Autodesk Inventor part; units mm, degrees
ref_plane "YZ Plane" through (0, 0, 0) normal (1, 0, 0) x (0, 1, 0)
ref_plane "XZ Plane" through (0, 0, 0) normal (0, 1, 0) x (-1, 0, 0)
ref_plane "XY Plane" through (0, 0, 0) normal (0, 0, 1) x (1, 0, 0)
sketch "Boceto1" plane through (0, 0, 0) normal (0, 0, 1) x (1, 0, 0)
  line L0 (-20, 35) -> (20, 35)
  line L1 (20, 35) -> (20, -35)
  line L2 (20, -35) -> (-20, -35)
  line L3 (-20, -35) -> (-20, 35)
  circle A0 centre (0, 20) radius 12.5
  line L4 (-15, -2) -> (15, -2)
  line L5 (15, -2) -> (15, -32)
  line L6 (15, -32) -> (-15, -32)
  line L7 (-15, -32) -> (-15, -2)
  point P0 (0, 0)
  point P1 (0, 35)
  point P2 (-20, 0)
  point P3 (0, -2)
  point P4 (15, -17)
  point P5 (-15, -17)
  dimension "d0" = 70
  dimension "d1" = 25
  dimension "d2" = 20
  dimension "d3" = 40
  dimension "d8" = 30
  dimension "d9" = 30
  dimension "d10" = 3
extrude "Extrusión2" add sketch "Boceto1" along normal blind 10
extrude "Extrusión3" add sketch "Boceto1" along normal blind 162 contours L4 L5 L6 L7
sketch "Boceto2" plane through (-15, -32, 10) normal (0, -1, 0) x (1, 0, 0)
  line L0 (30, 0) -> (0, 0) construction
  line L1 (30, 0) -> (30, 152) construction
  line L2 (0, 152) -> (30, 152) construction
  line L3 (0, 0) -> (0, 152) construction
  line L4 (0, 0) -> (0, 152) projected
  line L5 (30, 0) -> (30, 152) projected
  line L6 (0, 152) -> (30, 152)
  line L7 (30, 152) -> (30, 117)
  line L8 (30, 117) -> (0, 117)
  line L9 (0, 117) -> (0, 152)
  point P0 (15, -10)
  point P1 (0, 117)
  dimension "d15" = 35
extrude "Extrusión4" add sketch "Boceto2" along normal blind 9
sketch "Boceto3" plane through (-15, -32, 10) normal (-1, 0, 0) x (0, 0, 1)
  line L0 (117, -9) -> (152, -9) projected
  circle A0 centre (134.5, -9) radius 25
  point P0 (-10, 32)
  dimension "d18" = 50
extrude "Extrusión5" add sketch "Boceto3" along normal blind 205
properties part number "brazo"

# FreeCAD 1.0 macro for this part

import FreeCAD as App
import Part
import Sketcher
Q = App.Units.Quantity

doc = App.newDocument("Part")
params = doc.addObject("Spreadsheet::Sheet", "Params")
for row, (alias, value) in enumerate([
    ("sketch1_diameter", "25 mm"),
    ("sketch1_width", "40 mm"),
    ("sketch1_width2", "30 mm"),
    ("sketch1_height", "70 mm"),
    ("pad1_length", "10 mm"),
    ("sketch2_width", "30 mm"),
    ("pad2_length", "162 mm"),
    ("sketch3_height", "35 mm"),
    ("sketch3_width", "30 mm"),
    ("pad3_length", "9 mm"),
    ("sketch4_diameter", "50 mm"),
    ("pad4_length", "205 mm"),
], start=1):
    params.set(f"A{row}", alias)
    params.set(f"B{row}", "=" + value)
    params.setAlias(f"B{row}", alias)

body = doc.addObject("PartDesign::Body", "Body")

sketch1 = body.newObject("Sketcher::SketchObject", "Sketch")
sketch1.AttachmentSupport = (doc.getObject("XY_Plane"), [""])
sketch1.MapMode = "FlatFace"
sketch1.addGeometry([
    Part.LineSegment(App.Vector(20, 35, 0), App.Vector(-20, 35, 0)),
    Part.LineSegment(App.Vector(-20, 35, 0), App.Vector(-20, -35, 0)),
    Part.LineSegment(App.Vector(-20, -35, 0), App.Vector(20, -35, 0)),
    Part.LineSegment(App.Vector(20, -35, 0), App.Vector(20, 35, 0)),
    Part.LineSegment(App.Vector(-15, -32, 0), App.Vector(-15, -2, 0)),
    Part.LineSegment(App.Vector(-15, -2, 0), App.Vector(15, -2, 0)),
    Part.LineSegment(App.Vector(15, -2, 0), App.Vector(15, -32, 0)),
    Part.LineSegment(App.Vector(15, -32, 0), App.Vector(-15, -32, 0)),
    Part.Circle(App.Vector(0, 20, 0), App.Vector(0, 0, 1), 12.5),
], False)
sketch1.addConstraint([
    Sketcher.Constraint("Coincident", 0, 2, 1, 1),
    Sketcher.Constraint("Coincident", 1, 2, 2, 1),
    Sketcher.Constraint("Coincident", 2, 2, 3, 1),
    Sketcher.Constraint("Coincident", 3, 2, 0, 1),
    Sketcher.Constraint("Coincident", 4, 2, 5, 1),
    Sketcher.Constraint("Coincident", 5, 2, 6, 1),
    Sketcher.Constraint("Coincident", 6, 2, 7, 1),
    Sketcher.Constraint("Coincident", 7, 2, 4, 1),
    Sketcher.Constraint("Horizontal", 0),
    Sketcher.Constraint("Vertical", 1),
    Sketcher.Constraint("Horizontal", 2),
    Sketcher.Constraint("Vertical", 3),
    Sketcher.Constraint("Vertical", 4),
    Sketcher.Constraint("Horizontal", 5),
    Sketcher.Constraint("Vertical", 6),
    Sketcher.Constraint("Horizontal", 7),
    Sketcher.Constraint("Symmetric", 0, 2, 2, 2, -1, 1),
    Sketcher.Constraint("PointOnObject", 8, 3, -2),
    Sketcher.Constraint("Equal", 7, 4),
    Sketcher.Constraint("Diameter", 8, Q("25 mm")),
    Sketcher.Constraint("DistanceX", 0, 2, 0, 1, Q("40 mm")),
    Sketcher.Constraint("DistanceX", 5, 1, 5, 2, Q("30 mm")),
    Sketcher.Constraint("DistanceY", 1, 2, 1, 1, Q("70 mm")),
    Sketcher.Constraint("DistanceY", -1, 1, 8, 3, Q("20 mm")),
    Sketcher.Constraint("DistanceY", 2, 2, 6, 2, Q("3 mm")),
    Sketcher.Constraint("DistanceX", 4, 2, -1, 1, Q("15 mm")),
])
sketch1.setExpression("Constraints[19]", "Params.sketch1_diameter")
sketch1.setExpression("Constraints[20]", "Params.sketch1_width")
sketch1.setExpression("Constraints[21]", "Params.sketch1_width2")
sketch1.setExpression("Constraints[22]", "Params.sketch1_height")
pad1 = body.newObject("PartDesign::Pad", "Pad")
pad1.Profile = sketch1
pad1.setExpression("Length", "Params.pad1_length")

sketch2 = body.newObject("Sketcher::SketchObject", "Sketch001")
sketch2.AttachmentSupport = (doc.getObject("XY_Plane"), [""])
sketch2.MapMode = "FlatFace"
sketch2.addGeometry([
    Part.LineSegment(App.Vector(15, -2, 0), App.Vector(-15, -2, 0)),
    Part.LineSegment(App.Vector(-15, -2, 0), App.Vector(-15, -32, 0)),
    Part.LineSegment(App.Vector(-15, -32, 0), App.Vector(15, -32, 0)),
    Part.LineSegment(App.Vector(15, -32, 0), App.Vector(15, -2, 0)),
], False)
sketch2.addConstraint([
    Sketcher.Constraint("Coincident", 0, 2, 1, 1),
    Sketcher.Constraint("Coincident", 1, 2, 2, 1),
    Sketcher.Constraint("Coincident", 2, 2, 3, 1),
    Sketcher.Constraint("Coincident", 3, 2, 0, 1),
    Sketcher.Constraint("Horizontal", 0),
    Sketcher.Constraint("Vertical", 1),
    Sketcher.Constraint("Horizontal", 2),
    Sketcher.Constraint("Vertical", 3),
    Sketcher.Constraint("Equal", 2, 1),
    Sketcher.Constraint("DistanceX", 0, 2, 0, 1, Q("30 mm")),
    Sketcher.Constraint("DistanceX", 0, 2, -1, 1, Q("15 mm")),
    Sketcher.Constraint("DistanceY", 0, 2, -1, 1, Q("2 mm")),
])
sketch2.setExpression("Constraints[9]", "Params.sketch2_width")
pad2 = body.newObject("PartDesign::Pad", "Pad001")
pad2.Profile = sketch2
pad2.setExpression("Length", "Params.pad2_length")

sketch3 = body.newObject("Sketcher::SketchObject", "Sketch002")
sketch3.AttachmentSupport = (doc.getObject("XZ_Plane"), [""])
sketch3.MapMode = "FlatFace"
sketch3.AttachmentOffset = App.Placement(App.Vector(0, 0, 32), App.Rotation())
sketch3.addGeometry([
    Part.LineSegment(App.Vector(-15, 162, 0), App.Vector(-15, 127, 0)),
    Part.LineSegment(App.Vector(-15, 127, 0), App.Vector(15, 127, 0)),
    Part.LineSegment(App.Vector(15, 127, 0), App.Vector(15, 162, 0)),
    Part.LineSegment(App.Vector(15, 162, 0), App.Vector(-15, 162, 0)),
], False)
sketch3.addConstraint([
    Sketcher.Constraint("Coincident", 0, 2, 1, 1),
    Sketcher.Constraint("Coincident", 1, 2, 2, 1),
    Sketcher.Constraint("Coincident", 2, 2, 3, 1),
    Sketcher.Constraint("Coincident", 3, 2, 0, 1),
    Sketcher.Constraint("Vertical", 0),
    Sketcher.Constraint("Horizontal", 1),
    Sketcher.Constraint("Vertical", 2),
    Sketcher.Constraint("Horizontal", 3),
    Sketcher.Constraint("DistanceY", 0, 2, 0, 1, Q("35 mm")),
    Sketcher.Constraint("DistanceX", 1, 1, 1, 2, Q("30 mm")),
    Sketcher.Constraint("DistanceX", 0, 2, -1, 1, Q("15 mm")),
    Sketcher.Constraint("DistanceY", -1, 1, 0, 2, Q("127 mm")),
])
sketch3.setExpression("Constraints[8]", "Params.sketch3_height")
sketch3.setExpression("Constraints[9]", "Params.sketch3_width")
pad3 = body.newObject("PartDesign::Pad", "Pad002")
pad3.Profile = sketch3
pad3.setExpression("Length", "Params.pad3_length")

sketch4 = body.newObject("Sketcher::SketchObject", "Sketch003")
sketch4.AttachmentSupport = (doc.getObject("YZ_Plane"), [""])
sketch4.MapMode = "FlatFace"
sketch4.AttachmentOffset = App.Placement(App.Vector(0, 0, -15), App.Rotation())
sketch4.addGeometry(Part.Circle(App.Vector(-41, 144.5, 0), App.Vector(0, 0, 1), 25), False)
sketch4.addConstraint([
    Sketcher.Constraint("Diameter", 0, Q("50 mm")),
    Sketcher.Constraint("DistanceX", 0, 3, -1, 1, Q("41 mm")),
    Sketcher.Constraint("DistanceY", -1, 1, 0, 3, Q("144.5 mm")),
])
sketch4.setExpression("Constraints[0]", "Params.sketch4_diameter")
pad4 = body.newObject("PartDesign::Pad", "Pad003")
pad4.Profile = sketch4
pad4.setExpression("Length", "Params.pad4_length")
pad4.Reversed = True

doc.recompute()
